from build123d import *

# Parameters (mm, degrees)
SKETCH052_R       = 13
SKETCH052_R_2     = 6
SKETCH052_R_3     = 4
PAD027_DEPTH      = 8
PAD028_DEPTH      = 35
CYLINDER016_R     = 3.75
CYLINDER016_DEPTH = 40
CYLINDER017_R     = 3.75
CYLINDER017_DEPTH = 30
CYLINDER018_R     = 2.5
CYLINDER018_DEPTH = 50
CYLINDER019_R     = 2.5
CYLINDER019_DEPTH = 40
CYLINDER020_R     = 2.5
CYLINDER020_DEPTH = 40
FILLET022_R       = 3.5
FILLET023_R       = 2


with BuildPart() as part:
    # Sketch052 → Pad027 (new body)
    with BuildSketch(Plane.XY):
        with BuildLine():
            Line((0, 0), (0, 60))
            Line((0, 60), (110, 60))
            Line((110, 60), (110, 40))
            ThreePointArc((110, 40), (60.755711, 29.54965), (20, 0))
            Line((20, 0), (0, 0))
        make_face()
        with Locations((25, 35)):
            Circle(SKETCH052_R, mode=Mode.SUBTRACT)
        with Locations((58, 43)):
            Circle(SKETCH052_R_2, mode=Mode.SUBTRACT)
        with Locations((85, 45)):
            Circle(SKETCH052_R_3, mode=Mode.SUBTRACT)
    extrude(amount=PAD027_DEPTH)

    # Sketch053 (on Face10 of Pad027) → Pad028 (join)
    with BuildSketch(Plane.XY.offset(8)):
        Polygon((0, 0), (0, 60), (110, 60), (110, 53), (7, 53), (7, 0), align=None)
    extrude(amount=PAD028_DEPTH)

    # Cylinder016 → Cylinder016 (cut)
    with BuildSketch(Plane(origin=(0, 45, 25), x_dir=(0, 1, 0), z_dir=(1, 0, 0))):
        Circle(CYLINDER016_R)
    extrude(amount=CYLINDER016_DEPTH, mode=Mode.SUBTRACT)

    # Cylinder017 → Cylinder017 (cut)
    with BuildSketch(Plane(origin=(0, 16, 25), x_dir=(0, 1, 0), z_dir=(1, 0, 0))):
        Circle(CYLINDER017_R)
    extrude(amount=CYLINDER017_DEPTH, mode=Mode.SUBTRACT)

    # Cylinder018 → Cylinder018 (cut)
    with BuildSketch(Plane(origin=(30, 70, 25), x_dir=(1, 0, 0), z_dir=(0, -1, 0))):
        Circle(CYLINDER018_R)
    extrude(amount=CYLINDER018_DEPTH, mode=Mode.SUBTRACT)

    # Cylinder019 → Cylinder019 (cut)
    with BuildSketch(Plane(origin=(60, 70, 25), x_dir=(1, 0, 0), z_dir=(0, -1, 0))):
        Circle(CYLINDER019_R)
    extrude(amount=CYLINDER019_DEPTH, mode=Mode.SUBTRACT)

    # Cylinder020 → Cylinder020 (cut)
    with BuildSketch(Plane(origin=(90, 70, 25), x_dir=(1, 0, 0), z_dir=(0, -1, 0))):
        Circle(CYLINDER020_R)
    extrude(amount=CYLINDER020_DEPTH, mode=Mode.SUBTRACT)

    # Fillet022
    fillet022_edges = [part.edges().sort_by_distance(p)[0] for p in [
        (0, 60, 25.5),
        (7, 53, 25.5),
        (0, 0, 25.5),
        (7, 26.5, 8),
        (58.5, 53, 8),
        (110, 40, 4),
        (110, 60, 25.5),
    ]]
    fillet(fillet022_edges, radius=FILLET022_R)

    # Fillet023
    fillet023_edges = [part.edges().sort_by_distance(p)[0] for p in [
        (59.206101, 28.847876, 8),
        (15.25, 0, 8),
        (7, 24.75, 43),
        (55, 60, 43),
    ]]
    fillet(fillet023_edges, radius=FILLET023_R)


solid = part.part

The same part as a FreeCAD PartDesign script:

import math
import FreeCAD as App
import Part
import Sketcher

V = App.Vector


def edges_at(feature, points):
    """Names of the edges that pass closest to the given points."""
    edges = feature.Shape.Edges
    near = lambda p: min(range(len(edges)), key=lambda i: edges[i].distToShape(Part.Vertex(*p))[0])
    return sorted({f"Edge{near(p) + 1}" for p in points})


def add_polygon(sketch, points):
    """Adds a closed chain of lines whose ends are joined by coincident constraints."""
    first, n = sketch.GeometryCount, len(points)
    for a, b in zip(points, points[1:] + points[:1]):
        sketch.addGeometry(Part.LineSegment(App.Vector(*a, 0), App.Vector(*b, 0)), False)
    for i in range(n):
        sketch.addConstraint(Sketcher.Constraint("Coincident", first + i, 2, first + (i + 1) % n, 1))

doc = App.newDocument("Part")
body = doc.addObject("PartDesign::Body", "Body")

# Sketch on XY plane
sketch1 = doc.addObject("Sketcher::SketchObject", "Sketch")
body.addObject(sketch1)
sketch1.AttachmentSupport = (doc.XY_Plane, [""])
sketch1.MapMode = "FlatFace"
sketch1.addGeometry([
    Part.LineSegment(V(0, 60, 0), V(0, 0, 0)),  # 0
    Part.LineSegment(V(0, 0, 0), V(20, 0, 0)),  # 1
    Part.ArcOfCircle(Part.Circle(V(110, -81.3, 0), V(0, 0, 1), 121.3), math.radians(90), math.radians(138)),  # 2
    Part.LineSegment(V(110, 40, 0), V(110, 60, 0)),  # 3
    Part.LineSegment(V(110, 60, 0), V(0, 60, 0)),  # 4
    Part.Circle(V(25, 35, 0), V(0, 0, 1), 13),  # 5
    Part.Circle(V(85, 45, 0), V(0, 0, 1), 4),  # 6
    Part.Circle(V(58, 43, 0), V(0, 0, 1), 6),  # 7
], False)
sketch1.addConstraint([
    Sketcher.Constraint("Coincident", 0, 2, 1, 1),
    Sketcher.Constraint("Coincident", 1, 2, 2, 2),
    Sketcher.Constraint("Coincident", 2, 1, 3, 1),
    Sketcher.Constraint("Coincident", 3, 2, 4, 1),
    Sketcher.Constraint("Coincident", 4, 2, 0, 1),
    Sketcher.Constraint("Vertical", 0),
    Sketcher.Constraint("Horizontal", 1),
    Sketcher.Constraint("Vertical", 3),
    Sketcher.Constraint("Horizontal", 4),
    Sketcher.Constraint("Coincident", 0, 2, -1, 1),
    Sketcher.Constraint("Equal", 1, 3),
    Sketcher.Constraint("Diameter", 5, 26.0),
    Sketcher.Constraint("Diameter", 6, 8.0),
    Sketcher.Constraint("Diameter", 7, 12.0),
    Sketcher.Constraint("DistanceX", 1, 1, 1, 2, 20.0),
    Sketcher.Constraint("DistanceX", 4, 2, 4, 1, 110.0),
    Sketcher.Constraint("DistanceY", 0, 2, 0, 1, 60.0),
    Sketcher.Constraint("DistanceX", -1, 1, 2, 3, 110.000001),
    Sketcher.Constraint("DistanceX", -1, 1, 5, 3, 25.0),
    Sketcher.Constraint("DistanceY", -1, 1, 5, 3, 35.0),
    Sketcher.Constraint("DistanceX", -1, 1, 6, 3, 85.0),
    Sketcher.Constraint("DistanceY", -1, 1, 6, 3, 45.0),
    Sketcher.Constraint("DistanceX", -1, 1, 7, 3, 58.0),
    Sketcher.Constraint("DistanceY", -1, 1, 7, 3, 43.0),
])
pad1 = doc.addObject("PartDesign::Pad", "Pad")
body.addObject(pad1)
pad1.Profile = sketch1
pad1.Length = 8

# Sketch on XY plane
sketch2 = doc.addObject("Sketcher::SketchObject", "Sketch001")
body.addObject(sketch2)
sketch2.AttachmentSupport = (doc.XY_Plane, [""])
sketch2.MapMode = "FlatFace"
sketch2.AttachmentOffset = App.Placement(V(0, 0, 8), App.Rotation())
add_polygon(sketch2, [(0, 60), (0, 0), (7, 0), (7, 53), (110, 53), (110, 60)])  # lines 0-5
sketch2.addConstraint([
    Sketcher.Constraint("Vertical", 0),
    Sketcher.Constraint("Horizontal", 1),
    Sketcher.Constraint("Vertical", 2),
    Sketcher.Constraint("Horizontal", 3),
    Sketcher.Constraint("Vertical", 4),
    Sketcher.Constraint("Horizontal", 5),
    Sketcher.Constraint("Coincident", 0, 2, -1, 1),
    Sketcher.Constraint("Equal", 1, 4),
    Sketcher.Constraint("DistanceX", 1, 1, 1, 2, 7.0),
    Sketcher.Constraint("DistanceX", 3, 1, 3, 2, 103.0),
    Sketcher.Constraint("DistanceY", 0, 2, 0, 1, 60.0),
])
pad2 = doc.addObject("PartDesign::Pad", "Pad001")
body.addObject(pad2)
pad2.Profile = sketch2
pad2.Length = 35

# Sketch on YZ plane
sketch3 = doc.addObject("Sketcher::SketchObject", "Sketch002")
body.addObject(sketch3)
sketch3.AttachmentSupport = (doc.YZ_Plane, [""])
sketch3.MapMode = "FlatFace"
sketch3.addGeometry(Part.Circle(V(45, 25, 0), V(0, 0, 1), 3.8), False)
sketch3.addConstraint([
    Sketcher.Constraint("Diameter", 0, 7.5),
    Sketcher.Constraint("DistanceX", -1, 1, 0, 3, 45.0),
    Sketcher.Constraint("DistanceY", -1, 1, 0, 3, 25.0),
])
pocket1 = doc.addObject("PartDesign::Pocket", "Pocket")
body.addObject(pocket1)
pocket1.Profile = sketch3
pocket1.Length = 40
pocket1.Reversed = True

# Sketch on YZ plane
sketch4 = doc.addObject("Sketcher::SketchObject", "Sketch003")
body.addObject(sketch4)
sketch4.AttachmentSupport = (doc.YZ_Plane, [""])
sketch4.MapMode = "FlatFace"
sketch4.addGeometry(Part.Circle(V(16, 25, 0), V(0, 0, 1), 3.8), False)
sketch4.addConstraint([
    Sketcher.Constraint("Diameter", 0, 7.5),
    Sketcher.Constraint("DistanceX", -1, 1, 0, 3, 16.0),
    Sketcher.Constraint("DistanceY", -1, 1, 0, 3, 25.0),
])
pocket2 = doc.addObject("PartDesign::Pocket", "Pocket001")
body.addObject(pocket2)
pocket2.Profile = sketch4
pocket2.Length = 30
pocket2.Reversed = True

# Sketch on XZ plane
sketch5 = doc.addObject("Sketcher::SketchObject", "Sketch004")
body.addObject(sketch5)
sketch5.AttachmentSupport = (doc.XZ_Plane, [""])
sketch5.MapMode = "FlatFace"
sketch5.AttachmentOffset = App.Placement(V(0, 0, -70), App.Rotation())
sketch5.addGeometry(Part.Circle(V(30, 25, 0), V(0, 0, 1), 2.5), False)
sketch5.addConstraint([
    Sketcher.Constraint("Diameter", 0, 5.0),
    Sketcher.Constraint("DistanceX", -1, 1, 0, 3, 30.0),
    Sketcher.Constraint("DistanceY", -1, 1, 0, 3, 25.0),
])
pocket3 = doc.addObject("PartDesign::Pocket", "Pocket002")
body.addObject(pocket3)
pocket3.Profile = sketch5
pocket3.Length = 50
pocket3.Reversed = True

# Sketch on XZ plane
sketch6 = doc.addObject("Sketcher::SketchObject", "Sketch005")
body.addObject(sketch6)
sketch6.AttachmentSupport = (doc.XZ_Plane, [""])
sketch6.MapMode = "FlatFace"
sketch6.AttachmentOffset = App.Placement(V(0, 0, -70), App.Rotation())
sketch6.addGeometry(Part.Circle(V(60, 25, 0), V(0, 0, 1), 2.5), False)
sketch6.addConstraint([
    Sketcher.Constraint("Diameter", 0, 5.0),
    Sketcher.Constraint("DistanceX", -1, 1, 0, 3, 60.0),
    Sketcher.Constraint("DistanceY", -1, 1, 0, 3, 25.0),
])
pocket4 = doc.addObject("PartDesign::Pocket", "Pocket003")
body.addObject(pocket4)
pocket4.Profile = sketch6
pocket4.Length = 40
pocket4.Reversed = True

# Sketch on XZ plane
sketch7 = doc.addObject("Sketcher::SketchObject", "Sketch006")
body.addObject(sketch7)
sketch7.AttachmentSupport = (doc.XZ_Plane, [""])
sketch7.MapMode = "FlatFace"
sketch7.AttachmentOffset = App.Placement(V(0, 0, -70), App.Rotation())
sketch7.addGeometry(Part.Circle(V(90, 25, 0), V(0, 0, 1), 2.5), False)
sketch7.addConstraint([
    Sketcher.Constraint("Diameter", 0, 5.0),
    Sketcher.Constraint("DistanceX", -1, 1, 0, 3, 90.0),
    Sketcher.Constraint("DistanceY", -1, 1, 0, 3, 25.0),
])
pocket5 = doc.addObject("PartDesign::Pocket", "Pocket004")
body.addObject(pocket5)
pocket5.Profile = sketch7
pocket5.Length = 40
pocket5.Reversed = True
doc.recompute()

fillet = doc.addObject("PartDesign::Fillet", "Fillet")
body.addObject(fillet)
fillet.Base = (pocket5, edges_at(pocket5, [
    (0, 60, 21.5),
    (7, 53, 25.5),
    (0, 0, 21.5),
    (7, 26.5, 8),
    (58.5, 53, 8),
    (110, 40, 4),
    (110, 60, 21.5),
]))
fillet.Radius = 3.5
doc.recompute()

fillet2 = doc.addObject("PartDesign::Fillet", "Fillet001")
body.addObject(fillet2)
fillet2.Base = (fillet, edges_at(fillet, [
    (59.206, 28.848, 8),
    (15.25, 0, 8),
    (7, 24.75, 43),
    (55, 60, 43),
]))
fillet2.Radius = 2

doc.recompute()
